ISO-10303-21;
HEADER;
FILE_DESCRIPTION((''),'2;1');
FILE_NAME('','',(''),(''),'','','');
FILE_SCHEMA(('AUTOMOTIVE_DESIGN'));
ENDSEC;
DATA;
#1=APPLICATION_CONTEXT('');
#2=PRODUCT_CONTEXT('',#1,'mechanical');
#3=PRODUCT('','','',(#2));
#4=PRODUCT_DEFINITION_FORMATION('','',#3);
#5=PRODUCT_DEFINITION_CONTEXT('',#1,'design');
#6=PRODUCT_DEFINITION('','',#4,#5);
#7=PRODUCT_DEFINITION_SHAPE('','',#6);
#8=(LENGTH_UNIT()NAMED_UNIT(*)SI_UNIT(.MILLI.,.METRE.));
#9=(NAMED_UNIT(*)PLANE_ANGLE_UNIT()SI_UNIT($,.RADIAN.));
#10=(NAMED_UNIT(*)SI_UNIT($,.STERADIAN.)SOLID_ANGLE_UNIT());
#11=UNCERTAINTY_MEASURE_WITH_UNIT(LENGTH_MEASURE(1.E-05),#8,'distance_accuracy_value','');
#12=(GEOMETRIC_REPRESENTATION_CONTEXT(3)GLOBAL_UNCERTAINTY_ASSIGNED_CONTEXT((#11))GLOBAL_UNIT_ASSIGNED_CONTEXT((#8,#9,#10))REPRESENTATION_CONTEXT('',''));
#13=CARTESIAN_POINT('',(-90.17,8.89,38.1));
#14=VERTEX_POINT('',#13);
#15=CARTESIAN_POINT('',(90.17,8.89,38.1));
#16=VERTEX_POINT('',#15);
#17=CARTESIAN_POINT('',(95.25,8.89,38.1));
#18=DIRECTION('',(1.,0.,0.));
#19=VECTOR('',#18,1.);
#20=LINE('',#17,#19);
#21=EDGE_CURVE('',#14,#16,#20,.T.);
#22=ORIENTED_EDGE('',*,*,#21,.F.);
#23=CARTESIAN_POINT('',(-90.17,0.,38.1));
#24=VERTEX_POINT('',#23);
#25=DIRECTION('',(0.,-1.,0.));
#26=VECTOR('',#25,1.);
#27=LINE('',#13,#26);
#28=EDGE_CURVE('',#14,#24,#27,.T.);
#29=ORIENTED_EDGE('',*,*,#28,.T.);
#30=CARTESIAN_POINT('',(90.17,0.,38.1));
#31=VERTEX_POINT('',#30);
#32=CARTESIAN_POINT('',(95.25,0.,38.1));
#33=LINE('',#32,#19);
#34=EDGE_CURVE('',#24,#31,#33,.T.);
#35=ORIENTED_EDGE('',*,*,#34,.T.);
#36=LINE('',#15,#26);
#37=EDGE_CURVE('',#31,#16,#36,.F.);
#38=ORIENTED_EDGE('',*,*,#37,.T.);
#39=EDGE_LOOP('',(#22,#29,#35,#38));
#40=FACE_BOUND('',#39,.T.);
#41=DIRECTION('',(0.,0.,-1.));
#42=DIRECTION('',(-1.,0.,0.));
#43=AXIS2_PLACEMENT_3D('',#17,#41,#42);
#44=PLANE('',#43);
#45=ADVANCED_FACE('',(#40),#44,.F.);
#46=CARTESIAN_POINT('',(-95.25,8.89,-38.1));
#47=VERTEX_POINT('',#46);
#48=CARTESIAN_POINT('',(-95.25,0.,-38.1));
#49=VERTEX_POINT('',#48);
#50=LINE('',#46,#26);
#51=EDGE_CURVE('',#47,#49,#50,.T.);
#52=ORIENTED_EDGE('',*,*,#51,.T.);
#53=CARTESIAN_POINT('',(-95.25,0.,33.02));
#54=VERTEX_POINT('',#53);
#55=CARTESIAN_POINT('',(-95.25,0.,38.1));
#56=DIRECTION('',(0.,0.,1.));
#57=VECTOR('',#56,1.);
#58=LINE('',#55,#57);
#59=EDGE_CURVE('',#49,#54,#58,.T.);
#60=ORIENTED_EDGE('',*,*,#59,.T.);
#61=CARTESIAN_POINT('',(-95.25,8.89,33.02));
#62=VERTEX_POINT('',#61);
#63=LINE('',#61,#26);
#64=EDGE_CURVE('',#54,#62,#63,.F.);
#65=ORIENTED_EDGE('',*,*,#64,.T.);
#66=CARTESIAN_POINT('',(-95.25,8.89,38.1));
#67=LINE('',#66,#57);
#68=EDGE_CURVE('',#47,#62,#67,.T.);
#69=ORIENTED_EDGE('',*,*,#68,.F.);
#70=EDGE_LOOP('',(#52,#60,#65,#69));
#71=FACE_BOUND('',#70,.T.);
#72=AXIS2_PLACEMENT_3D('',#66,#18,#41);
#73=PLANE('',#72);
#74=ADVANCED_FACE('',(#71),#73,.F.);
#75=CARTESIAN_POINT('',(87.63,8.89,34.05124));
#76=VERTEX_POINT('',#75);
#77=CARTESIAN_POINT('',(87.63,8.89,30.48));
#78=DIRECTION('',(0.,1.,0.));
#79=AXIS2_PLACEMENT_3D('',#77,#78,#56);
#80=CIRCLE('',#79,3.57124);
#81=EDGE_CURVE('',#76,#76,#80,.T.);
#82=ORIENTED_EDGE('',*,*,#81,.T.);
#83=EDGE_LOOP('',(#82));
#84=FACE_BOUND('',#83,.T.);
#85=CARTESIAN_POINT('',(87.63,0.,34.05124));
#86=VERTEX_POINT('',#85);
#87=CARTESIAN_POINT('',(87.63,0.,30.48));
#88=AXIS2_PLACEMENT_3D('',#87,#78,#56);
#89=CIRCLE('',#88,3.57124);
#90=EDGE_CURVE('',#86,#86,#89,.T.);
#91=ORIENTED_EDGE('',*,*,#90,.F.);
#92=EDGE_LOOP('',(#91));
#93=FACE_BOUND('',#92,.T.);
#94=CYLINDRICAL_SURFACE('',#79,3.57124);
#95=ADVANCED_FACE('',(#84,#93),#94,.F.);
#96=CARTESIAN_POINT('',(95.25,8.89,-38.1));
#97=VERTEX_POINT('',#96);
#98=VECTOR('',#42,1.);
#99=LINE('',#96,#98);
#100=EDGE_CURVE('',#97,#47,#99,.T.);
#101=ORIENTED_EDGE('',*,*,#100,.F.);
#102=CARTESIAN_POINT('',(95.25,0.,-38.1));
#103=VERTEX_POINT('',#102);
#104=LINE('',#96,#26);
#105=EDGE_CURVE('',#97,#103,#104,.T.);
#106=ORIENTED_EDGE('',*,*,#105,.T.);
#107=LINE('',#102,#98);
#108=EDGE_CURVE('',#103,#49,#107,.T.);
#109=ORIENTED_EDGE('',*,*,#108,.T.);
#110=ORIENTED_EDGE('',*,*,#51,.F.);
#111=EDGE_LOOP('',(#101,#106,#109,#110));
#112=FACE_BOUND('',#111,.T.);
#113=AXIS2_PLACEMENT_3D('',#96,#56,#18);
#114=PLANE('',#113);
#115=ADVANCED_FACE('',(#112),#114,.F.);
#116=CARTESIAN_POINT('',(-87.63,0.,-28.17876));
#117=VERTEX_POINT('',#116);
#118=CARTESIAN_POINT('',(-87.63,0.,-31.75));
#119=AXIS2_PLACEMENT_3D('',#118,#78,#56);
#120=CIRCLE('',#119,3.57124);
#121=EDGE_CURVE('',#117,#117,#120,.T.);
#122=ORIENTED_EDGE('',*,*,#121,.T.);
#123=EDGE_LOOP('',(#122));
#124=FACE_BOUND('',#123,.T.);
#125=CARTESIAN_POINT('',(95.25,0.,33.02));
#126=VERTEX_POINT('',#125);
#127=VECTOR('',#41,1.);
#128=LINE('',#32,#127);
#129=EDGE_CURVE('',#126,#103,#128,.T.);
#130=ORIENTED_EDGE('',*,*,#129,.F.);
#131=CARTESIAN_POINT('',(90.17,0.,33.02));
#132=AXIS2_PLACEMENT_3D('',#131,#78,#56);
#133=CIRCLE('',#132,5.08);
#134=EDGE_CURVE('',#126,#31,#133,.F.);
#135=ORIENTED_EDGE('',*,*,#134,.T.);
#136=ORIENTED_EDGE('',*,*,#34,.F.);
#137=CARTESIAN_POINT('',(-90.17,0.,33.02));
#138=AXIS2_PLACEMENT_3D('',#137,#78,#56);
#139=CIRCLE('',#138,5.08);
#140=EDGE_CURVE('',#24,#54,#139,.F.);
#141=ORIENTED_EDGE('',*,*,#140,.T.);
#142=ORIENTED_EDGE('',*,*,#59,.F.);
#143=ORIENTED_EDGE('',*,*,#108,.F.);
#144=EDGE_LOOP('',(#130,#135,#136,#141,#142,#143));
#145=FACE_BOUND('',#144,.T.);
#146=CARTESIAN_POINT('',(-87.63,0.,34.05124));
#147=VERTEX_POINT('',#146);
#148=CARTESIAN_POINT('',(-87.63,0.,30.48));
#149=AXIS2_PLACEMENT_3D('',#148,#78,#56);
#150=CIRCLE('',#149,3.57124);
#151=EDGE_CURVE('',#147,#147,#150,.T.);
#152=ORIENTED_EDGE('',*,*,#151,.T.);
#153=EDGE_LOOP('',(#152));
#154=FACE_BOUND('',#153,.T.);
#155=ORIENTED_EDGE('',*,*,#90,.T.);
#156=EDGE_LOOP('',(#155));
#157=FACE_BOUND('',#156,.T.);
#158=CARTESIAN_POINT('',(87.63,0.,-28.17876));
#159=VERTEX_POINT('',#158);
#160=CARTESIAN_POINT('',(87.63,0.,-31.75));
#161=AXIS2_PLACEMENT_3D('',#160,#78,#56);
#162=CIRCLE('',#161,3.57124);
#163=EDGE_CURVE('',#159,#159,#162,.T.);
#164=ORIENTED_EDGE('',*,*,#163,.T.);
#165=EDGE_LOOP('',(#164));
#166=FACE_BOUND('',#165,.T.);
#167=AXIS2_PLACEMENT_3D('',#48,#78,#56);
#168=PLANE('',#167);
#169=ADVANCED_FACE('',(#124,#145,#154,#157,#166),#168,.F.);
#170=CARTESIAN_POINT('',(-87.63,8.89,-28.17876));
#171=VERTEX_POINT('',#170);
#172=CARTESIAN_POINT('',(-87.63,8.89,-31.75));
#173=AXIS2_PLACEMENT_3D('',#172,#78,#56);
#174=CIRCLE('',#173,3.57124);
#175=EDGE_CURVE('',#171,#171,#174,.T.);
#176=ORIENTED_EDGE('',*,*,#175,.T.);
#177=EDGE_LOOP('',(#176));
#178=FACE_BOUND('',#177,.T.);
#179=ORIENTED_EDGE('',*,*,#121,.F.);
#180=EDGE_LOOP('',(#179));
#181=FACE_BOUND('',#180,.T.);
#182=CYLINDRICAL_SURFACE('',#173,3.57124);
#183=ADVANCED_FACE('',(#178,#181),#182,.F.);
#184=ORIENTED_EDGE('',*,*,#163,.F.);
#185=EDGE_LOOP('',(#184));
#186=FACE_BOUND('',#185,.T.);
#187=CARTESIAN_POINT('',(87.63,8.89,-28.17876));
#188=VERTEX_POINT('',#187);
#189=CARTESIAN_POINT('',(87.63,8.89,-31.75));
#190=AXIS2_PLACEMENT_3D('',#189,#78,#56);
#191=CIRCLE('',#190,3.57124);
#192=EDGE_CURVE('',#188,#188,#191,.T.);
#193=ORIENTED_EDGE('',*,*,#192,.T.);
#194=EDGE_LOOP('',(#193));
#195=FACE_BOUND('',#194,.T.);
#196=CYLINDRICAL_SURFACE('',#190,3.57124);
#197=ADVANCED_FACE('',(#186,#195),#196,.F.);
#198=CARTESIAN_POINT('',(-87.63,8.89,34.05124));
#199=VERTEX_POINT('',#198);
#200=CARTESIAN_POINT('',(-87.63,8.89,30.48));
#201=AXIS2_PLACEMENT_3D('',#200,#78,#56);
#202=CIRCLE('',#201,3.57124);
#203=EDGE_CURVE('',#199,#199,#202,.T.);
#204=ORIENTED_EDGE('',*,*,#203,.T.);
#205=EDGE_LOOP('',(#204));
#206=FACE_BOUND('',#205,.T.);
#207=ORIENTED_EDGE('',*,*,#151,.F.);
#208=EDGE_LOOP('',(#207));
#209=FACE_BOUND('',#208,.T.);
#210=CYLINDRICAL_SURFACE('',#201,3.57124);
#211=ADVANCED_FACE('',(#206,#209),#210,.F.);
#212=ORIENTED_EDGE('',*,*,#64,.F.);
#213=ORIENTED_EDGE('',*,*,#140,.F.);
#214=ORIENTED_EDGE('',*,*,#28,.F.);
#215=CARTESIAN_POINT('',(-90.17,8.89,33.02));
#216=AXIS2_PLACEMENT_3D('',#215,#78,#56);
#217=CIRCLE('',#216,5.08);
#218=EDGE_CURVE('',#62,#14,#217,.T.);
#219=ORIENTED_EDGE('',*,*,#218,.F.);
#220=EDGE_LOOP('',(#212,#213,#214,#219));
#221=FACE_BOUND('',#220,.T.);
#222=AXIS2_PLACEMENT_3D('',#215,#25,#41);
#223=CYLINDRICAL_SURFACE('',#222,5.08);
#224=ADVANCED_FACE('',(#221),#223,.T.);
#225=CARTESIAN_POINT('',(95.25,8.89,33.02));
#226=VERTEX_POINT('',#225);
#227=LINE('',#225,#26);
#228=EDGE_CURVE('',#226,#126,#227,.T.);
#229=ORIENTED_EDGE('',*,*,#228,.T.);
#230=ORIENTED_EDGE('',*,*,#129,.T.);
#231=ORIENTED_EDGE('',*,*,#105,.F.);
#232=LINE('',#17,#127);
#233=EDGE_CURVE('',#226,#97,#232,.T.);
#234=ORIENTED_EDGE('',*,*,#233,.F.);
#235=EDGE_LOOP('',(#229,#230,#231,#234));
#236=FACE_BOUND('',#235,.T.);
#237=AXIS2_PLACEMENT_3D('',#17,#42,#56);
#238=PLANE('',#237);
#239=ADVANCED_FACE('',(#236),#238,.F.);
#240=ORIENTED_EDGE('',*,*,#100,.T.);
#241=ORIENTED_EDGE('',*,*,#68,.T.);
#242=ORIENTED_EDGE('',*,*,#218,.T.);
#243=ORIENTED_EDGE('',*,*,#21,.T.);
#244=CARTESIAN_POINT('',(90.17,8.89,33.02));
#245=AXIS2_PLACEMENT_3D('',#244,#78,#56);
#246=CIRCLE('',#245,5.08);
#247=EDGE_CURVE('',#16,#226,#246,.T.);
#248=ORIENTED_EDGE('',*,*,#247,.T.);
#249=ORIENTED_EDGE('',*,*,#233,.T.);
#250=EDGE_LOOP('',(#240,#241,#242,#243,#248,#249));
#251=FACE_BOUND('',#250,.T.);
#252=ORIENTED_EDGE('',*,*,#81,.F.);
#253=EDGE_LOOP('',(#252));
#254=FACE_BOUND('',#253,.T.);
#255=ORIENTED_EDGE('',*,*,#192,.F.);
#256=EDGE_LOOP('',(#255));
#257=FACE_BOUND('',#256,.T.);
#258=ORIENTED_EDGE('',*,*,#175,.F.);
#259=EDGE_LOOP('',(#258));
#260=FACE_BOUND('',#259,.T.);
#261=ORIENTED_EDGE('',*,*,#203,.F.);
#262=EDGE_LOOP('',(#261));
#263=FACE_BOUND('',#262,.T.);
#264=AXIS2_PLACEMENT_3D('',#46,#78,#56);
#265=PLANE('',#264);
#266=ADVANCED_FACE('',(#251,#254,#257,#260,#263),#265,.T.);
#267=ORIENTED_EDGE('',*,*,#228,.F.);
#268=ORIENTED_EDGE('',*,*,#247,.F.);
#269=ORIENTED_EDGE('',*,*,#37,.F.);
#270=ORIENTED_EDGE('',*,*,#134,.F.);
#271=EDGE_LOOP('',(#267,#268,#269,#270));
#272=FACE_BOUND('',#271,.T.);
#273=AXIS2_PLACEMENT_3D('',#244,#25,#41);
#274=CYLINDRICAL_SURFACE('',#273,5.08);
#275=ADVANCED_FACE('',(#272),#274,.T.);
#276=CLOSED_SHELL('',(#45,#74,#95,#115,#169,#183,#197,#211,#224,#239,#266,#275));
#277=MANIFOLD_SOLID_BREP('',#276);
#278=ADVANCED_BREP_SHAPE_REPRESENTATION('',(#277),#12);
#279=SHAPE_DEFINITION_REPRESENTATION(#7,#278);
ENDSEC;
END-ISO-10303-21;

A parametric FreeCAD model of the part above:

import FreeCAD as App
import Part
import Sketcher
from FreeCAD import Vector
Q = App.Units.Quantity


def edges_at(feature, points):
    """Names of the edges that pass closest to the given points."""
    edges = feature.Shape.Edges
    near = lambda p: min(range(len(edges)), key=lambda i: edges[i].distToShape(Part.Vertex(*p))[0])
    return sorted({f"Edge{near(p) + 1}" for p in points})

doc = App.newDocument("Part")
params = doc.addObject("Spreadsheet::Sheet", "Params")
for row, (alias, value) in enumerate([
    ("sketch1_height", "3 in"),
    ("sketch1_width", "7.5 in"),
    ("pad1_length", "0.35 in"),
    ("hole_diameter", "0.2812 in"),
    ("hole_depth", "0.35 in"),
    ("fillet_radius", "0.2 in"),
], start=1):
    params.set(f"A{row}", alias)
    params.set(f"B{row}", "=" + value)
    params.setAlias(f"B{row}", alias)

body = doc.addObject("PartDesign::Body", "Body")

sketch1 = doc.addObject("Sketcher::SketchObject", "Sketch")
body.addObject(sketch1)
sketch1.AttachmentSupport = (doc.XZ_Plane, [""])
sketch1.MapMode = "FlatFace"
sketch1.addGeometry([
    Part.LineSegment(Vector(-95, -38, 0), Vector(-95, 38, 0)),
    Part.LineSegment(Vector(-95, 38, 0), Vector(95, 38, 0)),
    Part.LineSegment(Vector(95, 38, 0), Vector(95, -38, 0)),
    Part.LineSegment(Vector(95, -38, 0), Vector(-95, -38, 0)),
], False)
sketch1.addConstraint([
    Sketcher.Constraint("Coincident", 0, 2, 1, 1),
    Sketcher.Constraint("Coincident", 1, 2, 2, 1),
    Sketcher.Constraint("Coincident", 2, 2, 3, 1),
    Sketcher.Constraint("Coincident", 3, 2, 0, 1),
    Sketcher.Constraint("Vertical", 0),
    Sketcher.Constraint("Horizontal", 1),
    Sketcher.Constraint("Vertical", 2),
    Sketcher.Constraint("Horizontal", 3),
    Sketcher.Constraint("Symmetric", 0, 2, 2, 2, -1, 1),
    Sketcher.Constraint("DistanceY", 0, 1, 0, 2, Q("3 in")),
    Sketcher.Constraint("DistanceX", 1, 1, 1, 2, Q("7.5 in")),
])
sketch1.setExpression("Constraints[9]", "Params.sketch1_height")
sketch1.setExpression("Constraints[10]", "Params.sketch1_width")
pad1 = doc.addObject("PartDesign::Pad", "Pad")
body.addObject(pad1)
pad1.Profile = sketch1
pad1.setExpression("Length", "Params.pad1_length")
pad1.Reversed = True

sketch2 = doc.addObject("Sketcher::SketchObject", "Sketch001")
body.addObject(sketch2)
sketch2.AttachmentSupport = (doc.XZ_Plane, [""])
sketch2.MapMode = "FlatFace"
sketch2.AttachmentOffset = App.Placement(Vector(0, 0, -0.35 * 25.4), App.Rotation())
sketch2.addGeometry([
    Part.Circle(Vector(-87.6, -31.8, 0), Vector(0, 0, 1), 3.6),
    Part.Circle(Vector(87.6, -31.8, 0), Vector(0, 0, 1), 3.6),
    Part.Circle(Vector(87.6, 30.5, 0), Vector(0, 0, 1), 3.6),
    Part.Circle(Vector(-87.6, 30.5, 0), Vector(0, 0, 1), 3.6),
], False)
sketch2.addConstraint([
    Sketcher.Constraint("Equal", 0, 1),
    Sketcher.Constraint("Equal", 1, 2),
    Sketcher.Constraint("Equal", 2, 3),
    Sketcher.Constraint("Symmetric", 0, 3, 1, 3, -2),
    Sketcher.Constraint("Symmetric", 2, 3, 3, 3, -2),
    Sketcher.Constraint("Vertical", 1, 3, 2, 3),
    Sketcher.Constraint("Diameter", 0, Q("0.2812 in")),
    Sketcher.Constraint("DistanceY", -1, 1, 2, 3, Q("1.2 in")),
    Sketcher.Constraint("DistanceX", 0, 3, 1, 3, Q("6.9 in")),
    Sketcher.Constraint("DistanceY", 0, 3, -1, 1, Q("1.25 in")),
])
doc.recompute()
hole = doc.addObject("PartDesign::Hole", "Hole")
body.addObject(hole)
hole.Profile = sketch2
hole.ThreadType = "None"
hole.setExpression("Diameter", "Params.hole_diameter")
hole.DepthType = "Dimension"
hole.setExpression("Depth", "Params.hole_depth")
hole.DrillPoint = "Flat"
hole.Reversed = True
doc.recompute()

fillet = doc.addObject("PartDesign::Fillet", "Fillet")
body.addObject(fillet)
fillet.Base = (hole, edges_at(hole, [(95.25, 4.445, 38.1), (-95.25, 4.445, 38.1)]))
fillet.setExpression("Radius", "Params.fillet_radius")

doc.recompute()
